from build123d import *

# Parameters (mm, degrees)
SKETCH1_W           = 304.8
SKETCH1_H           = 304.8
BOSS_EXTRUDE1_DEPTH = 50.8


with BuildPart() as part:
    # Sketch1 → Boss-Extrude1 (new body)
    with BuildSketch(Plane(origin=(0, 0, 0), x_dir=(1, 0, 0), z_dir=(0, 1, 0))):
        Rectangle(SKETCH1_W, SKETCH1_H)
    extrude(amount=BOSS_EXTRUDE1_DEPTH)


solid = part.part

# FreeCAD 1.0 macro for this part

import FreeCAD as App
import Part
import Sketcher
from FreeCAD import Vector
Q = App.Units.Quantity


def add_polygon(sketch, points):
    """Adds a closed chain of lines whose ends are joined by coincident constraints."""
    first, n = sketch.GeometryCount, len(points)
    for a, b in zip(points, points[1:] + points[:1]):
        sketch.addGeometry(Part.LineSegment(App.Vector(*a, 0), App.Vector(*b, 0)), False)
    for i in range(n):
        sketch.addConstraint(Sketcher.Constraint("Coincident", first + i, 2, first + (i + 1) % n, 1))

doc = App.newDocument("Part")
body = doc.addObject("PartDesign::Body", "Body")

sketch1 = doc.addObject("Sketcher::SketchObject", "Sketch")
body.addObject(sketch1)
sketch1.AttachmentSupport = (doc.XZ_Plane, [""])
sketch1.MapMode = "FlatFace"
add_polygon(sketch1, [(-152.4, -152.4), (-152.4, 152.4), (152.4, 152.4), (152.4, -152.4)])
sketch1.addConstraint([
    Sketcher.Constraint("Vertical", 0),
    Sketcher.Constraint("Horizontal", 1),
    Sketcher.Constraint("Vertical", 2),
    Sketcher.Constraint("Horizontal", 3),
    Sketcher.Constraint("Symmetric", 0, 2, 2, 2, -1, 1),
    Sketcher.Constraint("Equal", 3, 0),
    Sketcher.Constraint("DistanceX", 1, 1, 1, 2, Q("12 in")),
])
pad1 = doc.addObject("PartDesign::Pad", "Pad")
body.addObject(pad1)
pad1.Profile = sketch1
pad1.Length = Q("2 in")
pad1.Reversed = True

doc.recompute()
